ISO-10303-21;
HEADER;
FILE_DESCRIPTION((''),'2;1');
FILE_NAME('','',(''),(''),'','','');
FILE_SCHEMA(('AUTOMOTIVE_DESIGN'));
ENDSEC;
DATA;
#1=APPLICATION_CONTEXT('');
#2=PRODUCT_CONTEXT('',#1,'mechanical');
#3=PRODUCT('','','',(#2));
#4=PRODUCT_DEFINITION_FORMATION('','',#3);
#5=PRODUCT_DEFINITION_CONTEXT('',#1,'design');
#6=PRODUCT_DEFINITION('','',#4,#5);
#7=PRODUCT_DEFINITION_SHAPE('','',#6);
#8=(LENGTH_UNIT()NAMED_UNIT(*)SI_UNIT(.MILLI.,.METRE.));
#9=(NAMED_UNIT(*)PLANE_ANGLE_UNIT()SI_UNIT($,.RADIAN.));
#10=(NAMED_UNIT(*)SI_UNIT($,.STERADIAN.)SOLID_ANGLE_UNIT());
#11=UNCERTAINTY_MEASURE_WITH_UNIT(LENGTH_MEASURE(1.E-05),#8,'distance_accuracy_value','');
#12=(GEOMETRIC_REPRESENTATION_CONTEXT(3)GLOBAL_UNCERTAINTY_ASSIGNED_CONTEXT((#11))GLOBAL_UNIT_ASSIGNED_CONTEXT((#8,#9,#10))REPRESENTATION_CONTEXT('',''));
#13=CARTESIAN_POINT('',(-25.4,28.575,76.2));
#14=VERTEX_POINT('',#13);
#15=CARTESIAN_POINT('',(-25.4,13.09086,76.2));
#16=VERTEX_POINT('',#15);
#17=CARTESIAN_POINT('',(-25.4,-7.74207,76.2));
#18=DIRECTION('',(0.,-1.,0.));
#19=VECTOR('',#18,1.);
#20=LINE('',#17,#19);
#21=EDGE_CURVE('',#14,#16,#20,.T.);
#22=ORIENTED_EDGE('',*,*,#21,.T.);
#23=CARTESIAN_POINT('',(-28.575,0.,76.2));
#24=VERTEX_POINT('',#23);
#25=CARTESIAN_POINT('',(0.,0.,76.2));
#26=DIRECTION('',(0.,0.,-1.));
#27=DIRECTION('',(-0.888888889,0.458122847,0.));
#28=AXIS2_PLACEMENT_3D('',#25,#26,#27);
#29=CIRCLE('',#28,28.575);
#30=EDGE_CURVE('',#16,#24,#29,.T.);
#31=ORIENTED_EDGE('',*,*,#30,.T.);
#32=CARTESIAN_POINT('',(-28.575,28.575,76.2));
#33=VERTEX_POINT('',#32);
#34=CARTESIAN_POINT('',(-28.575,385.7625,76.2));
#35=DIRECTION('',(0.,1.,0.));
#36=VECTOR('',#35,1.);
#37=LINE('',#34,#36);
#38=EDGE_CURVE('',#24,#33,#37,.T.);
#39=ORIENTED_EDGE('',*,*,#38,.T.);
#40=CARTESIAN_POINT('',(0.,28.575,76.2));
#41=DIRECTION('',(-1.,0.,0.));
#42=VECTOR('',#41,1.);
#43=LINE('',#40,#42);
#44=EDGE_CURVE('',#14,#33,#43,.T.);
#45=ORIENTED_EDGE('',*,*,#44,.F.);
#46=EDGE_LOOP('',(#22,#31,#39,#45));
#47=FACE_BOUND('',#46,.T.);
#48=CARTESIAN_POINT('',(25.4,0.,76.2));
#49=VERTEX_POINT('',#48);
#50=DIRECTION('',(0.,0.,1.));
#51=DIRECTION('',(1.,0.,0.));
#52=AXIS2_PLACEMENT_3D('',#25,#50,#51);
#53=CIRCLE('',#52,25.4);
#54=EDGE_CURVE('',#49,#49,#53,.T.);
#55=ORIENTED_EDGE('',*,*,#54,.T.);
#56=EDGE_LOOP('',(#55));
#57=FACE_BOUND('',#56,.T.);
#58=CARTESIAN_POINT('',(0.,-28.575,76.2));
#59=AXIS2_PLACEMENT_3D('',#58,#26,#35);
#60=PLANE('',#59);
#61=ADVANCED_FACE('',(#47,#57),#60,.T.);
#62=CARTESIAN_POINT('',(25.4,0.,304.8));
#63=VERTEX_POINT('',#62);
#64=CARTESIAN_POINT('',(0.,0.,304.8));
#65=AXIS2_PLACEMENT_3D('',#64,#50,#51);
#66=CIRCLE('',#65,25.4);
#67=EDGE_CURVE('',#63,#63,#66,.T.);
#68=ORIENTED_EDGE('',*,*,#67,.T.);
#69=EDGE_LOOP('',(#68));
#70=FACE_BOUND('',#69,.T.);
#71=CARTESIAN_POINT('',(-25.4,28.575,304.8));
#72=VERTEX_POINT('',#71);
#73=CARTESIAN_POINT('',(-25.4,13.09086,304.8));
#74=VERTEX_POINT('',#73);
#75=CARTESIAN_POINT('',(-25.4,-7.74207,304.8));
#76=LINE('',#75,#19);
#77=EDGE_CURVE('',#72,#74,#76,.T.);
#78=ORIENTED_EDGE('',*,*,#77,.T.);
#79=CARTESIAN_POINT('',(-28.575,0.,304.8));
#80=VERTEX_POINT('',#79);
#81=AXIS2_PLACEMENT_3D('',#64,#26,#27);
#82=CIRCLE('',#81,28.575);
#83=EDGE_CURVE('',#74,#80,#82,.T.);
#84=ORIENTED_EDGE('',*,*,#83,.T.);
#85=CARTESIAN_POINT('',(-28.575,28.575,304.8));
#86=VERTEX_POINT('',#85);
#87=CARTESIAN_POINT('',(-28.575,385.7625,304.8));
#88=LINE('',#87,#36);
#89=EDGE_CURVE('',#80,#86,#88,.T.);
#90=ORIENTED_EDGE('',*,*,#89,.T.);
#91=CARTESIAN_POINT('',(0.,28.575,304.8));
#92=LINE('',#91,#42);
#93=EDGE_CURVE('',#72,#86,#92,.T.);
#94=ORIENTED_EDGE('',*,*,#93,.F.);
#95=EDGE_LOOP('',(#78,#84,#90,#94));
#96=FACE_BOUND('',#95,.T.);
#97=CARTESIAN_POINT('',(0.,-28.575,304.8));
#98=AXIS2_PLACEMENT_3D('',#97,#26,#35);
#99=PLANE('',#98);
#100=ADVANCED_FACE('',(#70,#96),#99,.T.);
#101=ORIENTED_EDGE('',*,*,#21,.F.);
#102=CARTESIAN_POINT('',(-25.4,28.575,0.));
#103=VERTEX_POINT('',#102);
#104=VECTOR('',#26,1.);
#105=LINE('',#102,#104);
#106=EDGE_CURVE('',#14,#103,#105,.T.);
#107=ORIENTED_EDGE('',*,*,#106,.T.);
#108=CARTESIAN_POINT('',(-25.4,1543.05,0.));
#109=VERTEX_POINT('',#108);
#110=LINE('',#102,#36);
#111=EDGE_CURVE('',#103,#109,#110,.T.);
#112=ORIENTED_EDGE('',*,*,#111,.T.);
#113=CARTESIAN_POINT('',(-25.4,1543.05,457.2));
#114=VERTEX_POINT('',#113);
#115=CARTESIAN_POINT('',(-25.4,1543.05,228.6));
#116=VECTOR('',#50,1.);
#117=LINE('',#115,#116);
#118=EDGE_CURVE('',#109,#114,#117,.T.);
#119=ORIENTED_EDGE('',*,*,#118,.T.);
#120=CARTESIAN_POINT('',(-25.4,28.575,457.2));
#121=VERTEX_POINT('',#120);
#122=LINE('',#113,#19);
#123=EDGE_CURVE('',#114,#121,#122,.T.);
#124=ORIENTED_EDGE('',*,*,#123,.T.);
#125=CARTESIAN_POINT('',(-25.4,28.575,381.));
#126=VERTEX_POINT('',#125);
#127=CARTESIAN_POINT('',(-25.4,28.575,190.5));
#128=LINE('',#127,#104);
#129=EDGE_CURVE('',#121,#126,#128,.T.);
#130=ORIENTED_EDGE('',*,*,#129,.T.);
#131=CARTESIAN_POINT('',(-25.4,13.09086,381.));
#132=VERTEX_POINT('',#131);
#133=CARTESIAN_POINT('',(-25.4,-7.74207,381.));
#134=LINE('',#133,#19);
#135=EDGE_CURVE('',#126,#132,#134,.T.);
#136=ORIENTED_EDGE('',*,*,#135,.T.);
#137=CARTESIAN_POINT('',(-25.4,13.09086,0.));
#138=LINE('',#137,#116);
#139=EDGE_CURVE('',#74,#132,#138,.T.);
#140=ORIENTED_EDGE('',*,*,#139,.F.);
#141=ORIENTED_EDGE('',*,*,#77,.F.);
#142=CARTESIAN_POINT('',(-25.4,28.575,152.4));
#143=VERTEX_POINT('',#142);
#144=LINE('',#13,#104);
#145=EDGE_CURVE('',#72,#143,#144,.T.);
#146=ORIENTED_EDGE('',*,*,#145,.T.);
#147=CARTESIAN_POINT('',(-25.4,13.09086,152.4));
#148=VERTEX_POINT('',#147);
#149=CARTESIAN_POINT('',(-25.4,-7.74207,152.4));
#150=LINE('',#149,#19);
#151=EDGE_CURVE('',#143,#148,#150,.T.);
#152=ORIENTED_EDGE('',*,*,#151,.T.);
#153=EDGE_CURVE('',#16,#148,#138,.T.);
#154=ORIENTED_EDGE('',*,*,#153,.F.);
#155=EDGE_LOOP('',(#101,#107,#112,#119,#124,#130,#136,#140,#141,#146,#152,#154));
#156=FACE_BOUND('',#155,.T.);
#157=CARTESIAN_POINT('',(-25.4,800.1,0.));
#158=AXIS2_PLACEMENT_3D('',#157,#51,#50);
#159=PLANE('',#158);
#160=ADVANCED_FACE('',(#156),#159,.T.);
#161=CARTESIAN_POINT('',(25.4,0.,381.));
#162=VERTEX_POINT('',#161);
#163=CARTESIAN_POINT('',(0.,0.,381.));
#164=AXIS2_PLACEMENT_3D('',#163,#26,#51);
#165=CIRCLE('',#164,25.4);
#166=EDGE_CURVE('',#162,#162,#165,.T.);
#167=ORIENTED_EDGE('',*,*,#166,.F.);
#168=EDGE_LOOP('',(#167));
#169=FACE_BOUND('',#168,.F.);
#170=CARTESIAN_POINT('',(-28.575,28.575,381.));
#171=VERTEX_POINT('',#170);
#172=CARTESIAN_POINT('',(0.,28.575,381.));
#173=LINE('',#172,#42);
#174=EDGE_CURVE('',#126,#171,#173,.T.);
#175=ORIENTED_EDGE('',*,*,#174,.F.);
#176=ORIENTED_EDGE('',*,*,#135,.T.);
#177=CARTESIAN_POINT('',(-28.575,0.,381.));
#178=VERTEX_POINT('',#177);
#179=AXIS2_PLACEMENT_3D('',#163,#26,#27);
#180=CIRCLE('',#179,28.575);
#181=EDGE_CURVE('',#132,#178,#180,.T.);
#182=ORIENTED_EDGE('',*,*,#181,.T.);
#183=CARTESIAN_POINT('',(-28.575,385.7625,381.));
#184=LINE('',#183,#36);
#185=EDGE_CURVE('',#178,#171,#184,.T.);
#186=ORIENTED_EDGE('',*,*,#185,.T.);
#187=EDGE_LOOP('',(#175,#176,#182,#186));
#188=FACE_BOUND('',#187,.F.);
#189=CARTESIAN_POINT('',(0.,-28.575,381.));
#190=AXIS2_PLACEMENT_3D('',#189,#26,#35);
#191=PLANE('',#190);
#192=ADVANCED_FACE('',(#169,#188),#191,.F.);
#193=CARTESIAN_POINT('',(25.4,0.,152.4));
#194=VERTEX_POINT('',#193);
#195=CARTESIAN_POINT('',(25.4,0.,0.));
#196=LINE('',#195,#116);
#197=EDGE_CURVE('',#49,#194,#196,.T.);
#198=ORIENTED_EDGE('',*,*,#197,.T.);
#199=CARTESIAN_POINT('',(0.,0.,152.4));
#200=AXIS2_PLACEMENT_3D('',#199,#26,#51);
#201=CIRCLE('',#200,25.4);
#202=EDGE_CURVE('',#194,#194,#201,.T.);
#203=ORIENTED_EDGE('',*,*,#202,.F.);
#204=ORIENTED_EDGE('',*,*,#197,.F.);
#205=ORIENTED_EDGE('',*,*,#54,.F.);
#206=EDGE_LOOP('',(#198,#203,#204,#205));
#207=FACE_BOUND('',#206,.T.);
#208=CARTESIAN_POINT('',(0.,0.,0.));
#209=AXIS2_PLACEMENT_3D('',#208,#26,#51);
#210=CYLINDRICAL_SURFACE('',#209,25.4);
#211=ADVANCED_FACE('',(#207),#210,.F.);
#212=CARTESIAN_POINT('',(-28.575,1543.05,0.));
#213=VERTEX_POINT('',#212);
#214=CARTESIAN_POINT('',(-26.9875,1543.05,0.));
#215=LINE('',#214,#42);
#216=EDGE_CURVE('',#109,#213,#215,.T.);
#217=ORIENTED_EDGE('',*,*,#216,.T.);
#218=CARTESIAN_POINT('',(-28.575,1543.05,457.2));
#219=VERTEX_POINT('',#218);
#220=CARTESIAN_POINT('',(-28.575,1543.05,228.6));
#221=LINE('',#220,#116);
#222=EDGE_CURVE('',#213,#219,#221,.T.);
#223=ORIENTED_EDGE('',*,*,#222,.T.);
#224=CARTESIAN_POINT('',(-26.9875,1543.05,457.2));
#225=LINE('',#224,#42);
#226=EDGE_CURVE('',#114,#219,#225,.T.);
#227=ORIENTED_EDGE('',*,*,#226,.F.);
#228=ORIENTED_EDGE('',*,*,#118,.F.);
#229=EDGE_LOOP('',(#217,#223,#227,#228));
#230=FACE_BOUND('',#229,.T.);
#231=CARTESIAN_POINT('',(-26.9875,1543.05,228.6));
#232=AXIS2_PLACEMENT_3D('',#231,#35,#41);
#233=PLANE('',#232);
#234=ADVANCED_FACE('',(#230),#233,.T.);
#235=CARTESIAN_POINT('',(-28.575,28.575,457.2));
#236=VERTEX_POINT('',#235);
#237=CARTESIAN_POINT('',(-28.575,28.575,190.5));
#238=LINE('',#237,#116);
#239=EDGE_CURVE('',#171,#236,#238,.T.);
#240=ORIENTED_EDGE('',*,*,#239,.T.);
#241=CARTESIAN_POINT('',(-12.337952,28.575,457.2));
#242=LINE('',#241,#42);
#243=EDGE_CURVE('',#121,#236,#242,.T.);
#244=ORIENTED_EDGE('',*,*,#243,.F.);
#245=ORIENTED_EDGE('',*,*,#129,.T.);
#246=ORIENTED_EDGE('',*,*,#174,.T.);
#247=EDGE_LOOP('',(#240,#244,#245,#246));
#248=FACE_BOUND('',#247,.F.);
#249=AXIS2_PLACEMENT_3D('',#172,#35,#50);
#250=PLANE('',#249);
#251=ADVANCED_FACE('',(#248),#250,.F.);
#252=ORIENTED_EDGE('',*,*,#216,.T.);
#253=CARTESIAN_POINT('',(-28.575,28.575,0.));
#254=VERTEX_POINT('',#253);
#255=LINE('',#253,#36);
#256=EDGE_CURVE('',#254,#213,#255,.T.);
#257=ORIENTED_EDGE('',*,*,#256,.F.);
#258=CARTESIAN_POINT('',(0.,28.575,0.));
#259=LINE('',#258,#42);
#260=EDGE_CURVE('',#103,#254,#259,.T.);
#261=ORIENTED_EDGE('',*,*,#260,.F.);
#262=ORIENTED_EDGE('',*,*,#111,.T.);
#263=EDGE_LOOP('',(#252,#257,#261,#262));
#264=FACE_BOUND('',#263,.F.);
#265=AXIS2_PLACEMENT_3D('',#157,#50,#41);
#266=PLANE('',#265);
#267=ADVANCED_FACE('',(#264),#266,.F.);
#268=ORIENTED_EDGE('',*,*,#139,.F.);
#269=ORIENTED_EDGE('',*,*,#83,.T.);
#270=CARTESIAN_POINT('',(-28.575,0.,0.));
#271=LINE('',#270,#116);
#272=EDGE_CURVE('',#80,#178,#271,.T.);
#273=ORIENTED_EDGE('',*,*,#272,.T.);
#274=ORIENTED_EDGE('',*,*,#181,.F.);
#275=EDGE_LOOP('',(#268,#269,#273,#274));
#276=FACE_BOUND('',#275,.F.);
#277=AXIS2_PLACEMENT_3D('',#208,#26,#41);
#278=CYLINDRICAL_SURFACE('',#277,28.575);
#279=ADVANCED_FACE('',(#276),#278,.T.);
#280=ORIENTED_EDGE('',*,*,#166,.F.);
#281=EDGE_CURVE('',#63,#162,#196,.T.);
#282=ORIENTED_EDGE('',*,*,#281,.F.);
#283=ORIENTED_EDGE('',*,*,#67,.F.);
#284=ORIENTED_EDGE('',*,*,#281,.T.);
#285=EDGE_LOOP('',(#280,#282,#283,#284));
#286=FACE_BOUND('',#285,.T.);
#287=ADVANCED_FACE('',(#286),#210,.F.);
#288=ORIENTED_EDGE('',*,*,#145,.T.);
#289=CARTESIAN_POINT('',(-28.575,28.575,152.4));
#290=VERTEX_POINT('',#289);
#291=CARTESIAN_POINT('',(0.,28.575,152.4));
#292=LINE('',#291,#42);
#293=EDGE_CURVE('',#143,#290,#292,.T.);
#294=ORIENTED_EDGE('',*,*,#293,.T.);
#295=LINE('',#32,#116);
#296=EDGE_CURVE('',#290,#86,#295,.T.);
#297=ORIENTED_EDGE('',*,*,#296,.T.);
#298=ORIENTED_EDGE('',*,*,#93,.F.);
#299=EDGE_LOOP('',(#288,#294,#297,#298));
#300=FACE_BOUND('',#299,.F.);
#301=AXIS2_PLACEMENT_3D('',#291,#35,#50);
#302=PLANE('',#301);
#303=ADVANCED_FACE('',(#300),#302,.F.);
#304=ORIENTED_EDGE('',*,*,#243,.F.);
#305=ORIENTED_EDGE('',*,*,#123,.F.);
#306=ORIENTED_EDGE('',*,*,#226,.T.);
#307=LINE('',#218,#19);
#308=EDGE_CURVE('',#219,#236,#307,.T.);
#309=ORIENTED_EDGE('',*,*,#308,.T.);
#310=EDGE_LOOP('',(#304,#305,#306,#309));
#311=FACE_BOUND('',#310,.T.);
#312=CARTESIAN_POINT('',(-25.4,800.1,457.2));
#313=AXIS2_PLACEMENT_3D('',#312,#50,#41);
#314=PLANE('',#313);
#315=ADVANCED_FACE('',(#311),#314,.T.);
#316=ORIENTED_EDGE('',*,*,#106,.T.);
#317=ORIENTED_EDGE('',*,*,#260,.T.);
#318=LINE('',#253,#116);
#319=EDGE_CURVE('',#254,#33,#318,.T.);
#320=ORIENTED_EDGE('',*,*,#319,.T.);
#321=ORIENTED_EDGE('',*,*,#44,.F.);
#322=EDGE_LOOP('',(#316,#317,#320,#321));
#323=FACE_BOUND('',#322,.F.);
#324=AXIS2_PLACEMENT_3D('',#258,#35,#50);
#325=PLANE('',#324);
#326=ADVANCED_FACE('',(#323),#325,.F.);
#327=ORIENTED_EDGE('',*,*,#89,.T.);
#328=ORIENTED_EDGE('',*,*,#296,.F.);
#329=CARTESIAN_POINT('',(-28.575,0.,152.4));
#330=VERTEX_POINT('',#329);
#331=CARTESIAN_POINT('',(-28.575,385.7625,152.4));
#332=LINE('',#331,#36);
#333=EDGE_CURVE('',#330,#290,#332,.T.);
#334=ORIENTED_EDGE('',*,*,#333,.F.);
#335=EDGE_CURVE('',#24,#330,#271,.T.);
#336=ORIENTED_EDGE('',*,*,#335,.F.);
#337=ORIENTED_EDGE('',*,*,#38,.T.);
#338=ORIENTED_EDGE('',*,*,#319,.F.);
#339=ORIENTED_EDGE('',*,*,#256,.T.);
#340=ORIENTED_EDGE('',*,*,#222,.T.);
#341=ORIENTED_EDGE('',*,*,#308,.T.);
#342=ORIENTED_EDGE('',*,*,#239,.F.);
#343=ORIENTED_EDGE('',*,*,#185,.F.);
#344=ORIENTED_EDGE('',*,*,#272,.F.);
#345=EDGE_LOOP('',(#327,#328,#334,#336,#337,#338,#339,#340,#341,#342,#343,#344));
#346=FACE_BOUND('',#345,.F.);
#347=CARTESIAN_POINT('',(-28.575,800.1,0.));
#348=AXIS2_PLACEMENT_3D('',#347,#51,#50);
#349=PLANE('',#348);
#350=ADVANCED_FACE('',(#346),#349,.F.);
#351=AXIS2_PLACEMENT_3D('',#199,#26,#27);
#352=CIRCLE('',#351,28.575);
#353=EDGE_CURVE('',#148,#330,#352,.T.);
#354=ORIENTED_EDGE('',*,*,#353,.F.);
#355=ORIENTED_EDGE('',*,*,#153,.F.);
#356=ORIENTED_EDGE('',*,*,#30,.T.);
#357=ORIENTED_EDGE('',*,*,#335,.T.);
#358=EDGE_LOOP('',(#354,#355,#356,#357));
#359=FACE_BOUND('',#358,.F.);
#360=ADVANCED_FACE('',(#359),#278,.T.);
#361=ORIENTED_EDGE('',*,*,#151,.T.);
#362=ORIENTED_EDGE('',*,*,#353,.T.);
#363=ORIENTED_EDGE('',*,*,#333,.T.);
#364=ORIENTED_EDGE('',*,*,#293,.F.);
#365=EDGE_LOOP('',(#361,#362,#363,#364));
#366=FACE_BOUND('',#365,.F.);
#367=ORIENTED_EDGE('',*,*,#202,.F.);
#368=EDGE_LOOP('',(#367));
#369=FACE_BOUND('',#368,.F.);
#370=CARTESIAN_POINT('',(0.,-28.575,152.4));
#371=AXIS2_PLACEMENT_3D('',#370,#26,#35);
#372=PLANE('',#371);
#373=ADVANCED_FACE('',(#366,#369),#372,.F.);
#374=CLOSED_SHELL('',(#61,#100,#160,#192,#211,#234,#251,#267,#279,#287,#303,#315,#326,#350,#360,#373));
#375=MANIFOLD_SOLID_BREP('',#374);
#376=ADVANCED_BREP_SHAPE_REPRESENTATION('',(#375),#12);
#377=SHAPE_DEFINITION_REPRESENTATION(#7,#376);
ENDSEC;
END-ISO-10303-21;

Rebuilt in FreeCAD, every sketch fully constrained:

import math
import FreeCAD as App
import Part
import Sketcher
Q = App.Units.Quantity

doc = App.newDocument("Part")
body = doc.addObject("PartDesign::Body", "Body")

sketch1 = doc.addObject("Sketcher::SketchObject", "Sketch")
body.addObject(sketch1)
sketch1.AttachmentSupport = (doc.XY_Plane, [""])
sketch1.MapMode = "FlatFace"
sketch1.addGeometry([
    Part.LineSegment(App.Vector(-28.6, 800.1, 0), App.Vector(-28.6, 0, 0)),
    Part.ArcOfCircle(Part.Circle(App.Vector(0, 0, 0), App.Vector(0, 0, 1), 28.6), math.radians(180), math.radians(513)),
    Part.LineSegment(App.Vector(-25.4, 13.1, 0), App.Vector(-25.4, 800.1, 0)),
    Part.LineSegment(App.Vector(-25.4, 800.1, 0), App.Vector(-28.6, 800.1, 0)),
    Part.Circle(App.Vector(0, 0, 0), App.Vector(0, 0, 1), 25.4),
], False)
sketch1.addConstraint([
    Sketcher.Constraint("Tangent", 0, 2, 1, 1),
    Sketcher.Constraint("Coincident", 1, 2, 2, 1),
    Sketcher.Constraint("Coincident", 2, 2, 3, 1),
    Sketcher.Constraint("Coincident", 3, 2, 0, 1),
    Sketcher.Constraint("Vertical", 0),
    Sketcher.Constraint("Vertical", 2),
    Sketcher.Constraint("Horizontal", 3),
    Sketcher.Constraint("Coincident", 1, 3, -1, 1),
    Sketcher.Constraint("Coincident", 4, 3, -1, 1),
    Sketcher.Constraint("Diameter", 4, Q("2 in")),
    Sketcher.Constraint("DistanceY", 0, 2, 0, 1, Q("31.5 in")),
    Sketcher.Constraint("DistanceX", 1, 2, -1, 1, Q("1 in")),
    Sketcher.Constraint("Radius", 1, Q("1.125 in")),
])
pad1 = doc.addObject("PartDesign::Pad", "Pad")
body.addObject(pad1)
pad1.Profile = sketch1
pad1.Length = Q("18 in")

sketch2 = doc.addObject("Sketcher::SketchObject", "Sketch001")
body.addObject(sketch2)
sketch2.AttachmentSupport = (doc.YZ_Plane, [""])
sketch2.MapMode = "FlatFace"
sketch2.addGeometry([
    Part.LineSegment(App.Vector(-29, 76, 0), App.Vector(-29, 0, 0)),
    Part.LineSegment(App.Vector(-29, 0, 0), App.Vector(29, 0, 0)),
    Part.LineSegment(App.Vector(29, 0, 0), App.Vector(29, 76, 0)),
    Part.LineSegment(App.Vector(29, 76, 0), App.Vector(-29, 76, 0)),
    Part.LineSegment(App.Vector(-29, 305, 0), App.Vector(-29, 152, 0)),
    Part.LineSegment(App.Vector(-29, 152, 0), App.Vector(29, 152, 0)),
    Part.LineSegment(App.Vector(29, 152, 0), App.Vector(29, 305, 0)),
    Part.LineSegment(App.Vector(29, 305, 0), App.Vector(-29, 305, 0)),
    Part.LineSegment(App.Vector(-29, 460, 0), App.Vector(-29, 381, 0)),
    Part.LineSegment(App.Vector(-29, 381, 0), App.Vector(29, 381, 0)),
    Part.LineSegment(App.Vector(29, 381, 0), App.Vector(29, 460, 0)),
    Part.LineSegment(App.Vector(29, 460, 0), App.Vector(-29, 460, 0)),
], False)
sketch2.addConstraint([
    Sketcher.Constraint("Coincident", 0, 2, 1, 1),
    Sketcher.Constraint("Coincident", 1, 2, 2, 1),
    Sketcher.Constraint("Coincident", 2, 2, 3, 1),
    Sketcher.Constraint("Coincident", 3, 2, 0, 1),
    Sketcher.Constraint("Coincident", 4, 2, 5, 1),
    Sketcher.Constraint("Coincident", 5, 2, 6, 1),
    Sketcher.Constraint("Coincident", 6, 2, 7, 1),
    Sketcher.Constraint("Coincident", 7, 2, 4, 1),
    Sketcher.Constraint("Coincident", 8, 2, 9, 1),
    Sketcher.Constraint("Coincident", 9, 2, 10, 1),
    Sketcher.Constraint("Coincident", 10, 2, 11, 1),
    Sketcher.Constraint("Coincident", 11, 2, 8, 1),
    Sketcher.Constraint("Vertical", 0),
    Sketcher.Constraint("Horizontal", 1),
    Sketcher.Constraint("Vertical", 2),
    Sketcher.Constraint("Horizontal", 3),
    Sketcher.Constraint("Vertical", 4),
    Sketcher.Constraint("Horizontal", 5),
    Sketcher.Constraint("Vertical", 6),
    Sketcher.Constraint("Horizontal", 7),
    Sketcher.Constraint("Vertical", 8),
    Sketcher.Constraint("Horizontal", 9),
    Sketcher.Constraint("Vertical", 10),
    Sketcher.Constraint("Horizontal", 11),
    Sketcher.Constraint("Symmetric", 0, 2, 1, 2, -1, 1),
    Sketcher.Constraint("Vertical", 3, 2, 4, 2),
    Sketcher.Constraint("Vertical", 2, 2, 5, 2),
    Sketcher.Constraint("Vertical", 7, 2, 8, 2),
    Sketcher.Constraint("Vertical", 6, 2, 9, 2),
    Sketcher.Constraint("DistanceY", 0, 2, 0, 1, Q("3 in")),
    Sketcher.Constraint("DistanceY", 4, 2, 4, 1, Q("6 in")),
    Sketcher.Constraint("DistanceY", -1, 1, 4, 2, Q("6 in")),
    Sketcher.Constraint("DistanceY", -1, 1, 8, 2, Q("15 in")),
    Sketcher.Constraint("DistanceX", 1, 1, 1, 2, Q("2.25 in")),
    Sketcher.Constraint("DistanceY", 8, 2, 8, 1, Q("79.438937 mm")),
])
pocket1 = doc.addObject("PartDesign::Pocket", "Pocket")
body.addObject(pocket1)
pocket1.Profile = sketch2
pocket1.Type = "ThroughAll"
pocket1.Midplane = True

sketch3 = doc.addObject("Sketcher::SketchObject", "Sketch002")
body.addObject(sketch3)
sketch3.AttachmentSupport = (doc.XZ_Plane, [""])
sketch3.MapMode = "FlatFace"
sketch3.AttachmentOffset = App.Placement(App.Vector(0, 0, -31.5 * 25.4), App.Rotation())
sketch3.addGeometry([
    Part.LineSegment(App.Vector(-25.4, 457.2, 0), App.Vector(-25.4, 0, 0)),
    Part.LineSegment(App.Vector(-25.4, 0, 0), App.Vector(-28.6, 0, 0)),
    Part.LineSegment(App.Vector(-28.6, 0, 0), App.Vector(-28.6, 457.2, 0)),
    Part.LineSegment(App.Vector(-28.6, 457.2, 0), App.Vector(-25.4, 457.2, 0)),
], False)
sketch3.addConstraint([
    Sketcher.Constraint("Coincident", 0, 2, 1, 1),
    Sketcher.Constraint("Coincident", 1, 2, 2, 1),
    Sketcher.Constraint("Coincident", 2, 2, 3, 1),
    Sketcher.Constraint("Coincident", 3, 2, 0, 1),
    Sketcher.Constraint("Vertical", 0),
    Sketcher.Constraint("Horizontal", 1),
    Sketcher.Constraint("Vertical", 2),
    Sketcher.Constraint("Horizontal", 3),
    Sketcher.Constraint("PointOnObject", 0, 2, -1),
    Sketcher.Constraint("DistanceY", 0, 2, 0, 1, Q("18 in")),
    Sketcher.Constraint("DistanceX", 0, 2, -1, 1, Q("1 in")),
    Sketcher.Constraint("DistanceX", 1, 2, 1, 1, Q("0.125 in")),
])
pad2 = doc.addObject("PartDesign::Pad", "Pad001")
body.addObject(pad2)
pad2.Profile = sketch3
pad2.Length = Q("29.25 in")
pad2.Reversed = True

doc.recompute()
